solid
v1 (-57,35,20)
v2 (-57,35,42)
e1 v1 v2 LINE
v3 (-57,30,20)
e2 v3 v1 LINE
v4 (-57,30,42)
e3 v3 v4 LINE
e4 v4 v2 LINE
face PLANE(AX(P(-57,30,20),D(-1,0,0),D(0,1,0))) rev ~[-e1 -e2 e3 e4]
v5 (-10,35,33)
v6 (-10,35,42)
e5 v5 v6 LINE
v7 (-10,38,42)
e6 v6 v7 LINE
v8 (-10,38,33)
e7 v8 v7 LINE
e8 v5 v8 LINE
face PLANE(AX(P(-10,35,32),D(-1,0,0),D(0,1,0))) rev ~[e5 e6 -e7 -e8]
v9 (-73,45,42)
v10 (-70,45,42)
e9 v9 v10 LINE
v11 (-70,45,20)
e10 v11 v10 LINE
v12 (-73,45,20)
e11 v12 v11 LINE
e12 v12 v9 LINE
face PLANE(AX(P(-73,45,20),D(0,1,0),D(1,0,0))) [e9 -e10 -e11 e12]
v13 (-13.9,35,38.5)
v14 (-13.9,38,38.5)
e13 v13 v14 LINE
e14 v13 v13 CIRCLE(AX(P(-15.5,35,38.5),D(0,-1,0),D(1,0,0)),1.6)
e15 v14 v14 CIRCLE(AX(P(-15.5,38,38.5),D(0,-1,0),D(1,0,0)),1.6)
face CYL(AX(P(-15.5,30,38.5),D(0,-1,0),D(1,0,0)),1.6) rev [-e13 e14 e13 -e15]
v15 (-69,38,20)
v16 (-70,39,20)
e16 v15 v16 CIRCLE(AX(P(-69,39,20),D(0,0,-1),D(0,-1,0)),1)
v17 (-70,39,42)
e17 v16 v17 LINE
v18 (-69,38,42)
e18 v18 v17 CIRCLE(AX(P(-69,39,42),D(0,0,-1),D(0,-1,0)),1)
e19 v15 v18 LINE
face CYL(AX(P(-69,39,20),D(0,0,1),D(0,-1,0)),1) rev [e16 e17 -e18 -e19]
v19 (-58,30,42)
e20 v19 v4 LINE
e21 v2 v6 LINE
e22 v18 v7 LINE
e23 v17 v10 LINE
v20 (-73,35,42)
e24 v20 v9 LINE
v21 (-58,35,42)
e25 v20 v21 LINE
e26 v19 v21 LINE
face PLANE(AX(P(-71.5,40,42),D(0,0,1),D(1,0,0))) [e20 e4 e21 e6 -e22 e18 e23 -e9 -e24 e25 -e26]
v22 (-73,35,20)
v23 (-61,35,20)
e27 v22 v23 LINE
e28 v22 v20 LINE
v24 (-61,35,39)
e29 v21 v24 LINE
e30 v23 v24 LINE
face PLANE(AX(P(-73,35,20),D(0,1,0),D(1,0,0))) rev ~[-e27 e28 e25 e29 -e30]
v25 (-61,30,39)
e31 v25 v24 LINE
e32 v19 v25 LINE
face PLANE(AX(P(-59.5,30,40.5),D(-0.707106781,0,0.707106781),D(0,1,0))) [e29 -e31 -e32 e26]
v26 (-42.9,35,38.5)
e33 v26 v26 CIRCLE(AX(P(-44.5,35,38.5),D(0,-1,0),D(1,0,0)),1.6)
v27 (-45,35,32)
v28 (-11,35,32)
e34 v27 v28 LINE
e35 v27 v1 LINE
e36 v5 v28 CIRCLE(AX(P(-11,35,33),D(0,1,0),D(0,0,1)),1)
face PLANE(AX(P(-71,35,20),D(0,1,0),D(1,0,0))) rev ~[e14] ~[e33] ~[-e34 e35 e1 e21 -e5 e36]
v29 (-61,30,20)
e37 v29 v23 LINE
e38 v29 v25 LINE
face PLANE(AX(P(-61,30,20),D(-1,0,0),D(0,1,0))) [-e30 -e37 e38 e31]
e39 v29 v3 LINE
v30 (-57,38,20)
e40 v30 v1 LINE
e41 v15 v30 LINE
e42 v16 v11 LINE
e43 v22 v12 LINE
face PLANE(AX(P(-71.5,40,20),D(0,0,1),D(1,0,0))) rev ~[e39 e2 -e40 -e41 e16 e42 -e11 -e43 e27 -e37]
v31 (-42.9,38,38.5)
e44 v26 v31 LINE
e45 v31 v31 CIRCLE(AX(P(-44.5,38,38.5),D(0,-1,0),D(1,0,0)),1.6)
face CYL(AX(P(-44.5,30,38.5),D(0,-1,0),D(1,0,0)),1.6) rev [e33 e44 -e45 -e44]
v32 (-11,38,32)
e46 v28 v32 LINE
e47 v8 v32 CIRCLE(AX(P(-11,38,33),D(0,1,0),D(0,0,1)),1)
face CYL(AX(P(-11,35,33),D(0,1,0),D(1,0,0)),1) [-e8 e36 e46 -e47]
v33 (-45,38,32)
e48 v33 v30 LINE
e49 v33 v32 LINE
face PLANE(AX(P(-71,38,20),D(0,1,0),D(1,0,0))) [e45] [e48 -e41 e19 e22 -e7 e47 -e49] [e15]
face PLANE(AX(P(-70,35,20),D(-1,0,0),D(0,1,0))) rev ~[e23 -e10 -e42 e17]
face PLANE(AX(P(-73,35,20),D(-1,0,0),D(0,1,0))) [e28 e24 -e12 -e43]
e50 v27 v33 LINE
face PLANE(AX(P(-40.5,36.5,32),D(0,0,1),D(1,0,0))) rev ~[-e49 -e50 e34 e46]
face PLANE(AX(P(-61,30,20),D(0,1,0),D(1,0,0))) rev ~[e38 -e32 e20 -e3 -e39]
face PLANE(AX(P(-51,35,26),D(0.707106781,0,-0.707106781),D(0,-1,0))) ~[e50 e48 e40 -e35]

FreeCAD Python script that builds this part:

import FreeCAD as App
import Part
import Sketcher


def edges_at(feature, points):
    """Names of the edges that pass closest to the given points."""
    edges = feature.Shape.Edges
    near = lambda p: min(range(len(edges)), key=lambda i: edges[i].distToShape(Part.Vertex(*p))[0])
    return sorted({f"Edge{near(p) + 1}" for p in points})

doc = App.newDocument("Part")
body = doc.addObject("PartDesign::Body", "Body")

# Sketch on XY plane
sketch1 = body.newObject("Sketcher::SketchObject", "Sketch")
sketch1.AttachmentSupport = (doc.getObject("XY_Plane"), [""])
sketch1.MapMode = "FlatFace"
sketch1.addGeometry(Part.Circle(App.Vector(0, 0, 0), App.Vector(0, 0, 1), 1.6), False)
sketch1.addConstraint([
    Sketcher.Constraint("Coincident", 0, 3, -1, 1),
    Sketcher.Constraint("Diameter", 0, 3.2),
])
pad1 = body.newObject("PartDesign::Pad", "Pad")
pad1.Profile = sketch1
pad1.Length = 10
body2 = doc.addObject("PartDesign::Body", "Body001")
doc.recompute()

body.Placement = App.Placement(App.Vector(0, 0, 0), App.Rotation(App.Vector(1, 0, 0), 270))
boolean = body2.newObject("PartDesign::Boolean", "Boolean")
boolean.Type = "Fuse"
boolean.addObjects([body])
body3 = doc.addObject("PartDesign::Body", "Body002")
doc.recompute()

body2.Placement = App.Placement(App.Vector(-15.5, 30, 38.5), App.Rotation(App.Vector(0, 0, 1), 0))
boolean2 = body3.newObject("PartDesign::Boolean", "Boolean001")
boolean2.Type = "Fuse"
boolean2.addObjects([body2])
body4 = doc.addObject("PartDesign::Body", "Body003")

# Sketch on XY plane
sketch2 = body4.newObject("Sketcher::SketchObject", "Sketch001")
sketch2.AttachmentSupport = (doc.getObject("XY_Plane003"), [""])
sketch2.MapMode = "FlatFace"
sketch2.addGeometry(Part.Circle(App.Vector(0, 0, 0), App.Vector(0, 0, 1), 1.6), False)
sketch2.addConstraint([
    Sketcher.Constraint("Coincident", 0, 3, -1, 1),
    Sketcher.Constraint("Diameter", 0, 3.2),
])
pad2 = body4.newObject("PartDesign::Pad", "Pad001")
pad2.Profile = sketch2
pad2.Length = 10
body5 = doc.addObject("PartDesign::Body", "Body004")
doc.recompute()

body4.Placement = App.Placement(App.Vector(0, 0, 0), App.Rotation(App.Vector(1, 0, 0), 270))
boolean3 = body5.newObject("PartDesign::Boolean", "Boolean002")
boolean3.Type = "Fuse"
boolean3.addObjects([body4])
body6 = doc.addObject("PartDesign::Body", "Body005")
body6.AllowCompound = True
doc.recompute()

body5.Placement = App.Placement(App.Vector(-44.5, 30, 38.5), App.Rotation(App.Vector(0, 0, 1), 0))
boolean4 = body6.newObject("PartDesign::Boolean", "Boolean003")
boolean4.Type = "Fuse"
boolean4.addObjects([body5])
doc.recompute()

boolean5 = body6.newObject("PartDesign::Boolean", "Boolean004")
boolean5.Type = "Fuse"
boolean5.addObjects([body3])
body7 = doc.addObject("PartDesign::Body", "Body006")

# Sketch on XY plane
sketch3 = body7.newObject("Sketcher::SketchObject", "Sketch002")
sketch3.AttachmentSupport = (doc.getObject("XY_Plane006"), [""])
sketch3.MapMode = "FlatFace"
sketch3.AttachmentOffset = App.Placement(App.Vector(0, 0, 20), App.Rotation())
sketch3.addGeometry([
    Part.LineSegment(App.Vector(-73, 45, 0), App.Vector(-73, 35, 0)),
    Part.LineSegment(App.Vector(-73, 35, 0), App.Vector(-70, 35, 0)),
    Part.LineSegment(App.Vector(-70, 35, 0), App.Vector(-70, 45, 0)),
    Part.LineSegment(App.Vector(-70, 45, 0), App.Vector(-73, 45, 0)),
], False)
sketch3.addConstraint([
    Sketcher.Constraint("Coincident", 0, 2, 1, 1),
    Sketcher.Constraint("Coincident", 1, 2, 2, 1),
    Sketcher.Constraint("Coincident", 2, 2, 3, 1),
    Sketcher.Constraint("Coincident", 3, 2, 0, 1),
    Sketcher.Constraint("Vertical", 0),
    Sketcher.Constraint("Horizontal", 1),
    Sketcher.Constraint("Vertical", 2),
    Sketcher.Constraint("Horizontal", 3),
    Sketcher.Constraint("DistanceX", 1, 1, 1, 2, 3.0),
    Sketcher.Constraint("DistanceY", 0, 2, 0, 1, 10.0),
    Sketcher.Constraint("DistanceX", 0, 2, -1, 1, 73.0),
    Sketcher.Constraint("DistanceY", -1, 1, 0, 2, 35.0),
])
pad3 = body7.newObject("PartDesign::Pad", "Pad002")
pad3.Profile = sketch3
pad3.Length = 22
body8 = doc.addObject("PartDesign::Body", "Body007")

# Sketch on XY plane
sketch4 = body8.newObject("Sketcher::SketchObject", "Sketch003")
sketch4.AttachmentSupport = (doc.getObject("XY_Plane007"), [""])
sketch4.MapMode = "FlatFace"
sketch4.AttachmentOffset = App.Placement(App.Vector(0, 0, 20), App.Rotation())
sketch4.addGeometry([
    Part.LineSegment(App.Vector(-61, 37, 0), App.Vector(-61, 30, 0)),
    Part.LineSegment(App.Vector(-61, 30, 0), App.Vector(-57, 30, 0)),
    Part.LineSegment(App.Vector(-57, 30, 0), App.Vector(-57, 37, 0)),
    Part.LineSegment(App.Vector(-57, 37, 0), App.Vector(-61, 37, 0)),
], False)
sketch4.addConstraint([
    Sketcher.Constraint("Coincident", 0, 2, 1, 1),
    Sketcher.Constraint("Coincident", 1, 2, 2, 1),
    Sketcher.Constraint("Coincident", 2, 2, 3, 1),
    Sketcher.Constraint("Coincident", 3, 2, 0, 1),
    Sketcher.Constraint("Vertical", 0),
    Sketcher.Constraint("Horizontal", 1),
    Sketcher.Constraint("Vertical", 2),
    Sketcher.Constraint("Horizontal", 3),
    Sketcher.Constraint("DistanceX", 1, 1, 1, 2, 4.0),
    Sketcher.Constraint("DistanceY", 0, 2, 0, 1, 7.0),
    Sketcher.Constraint("DistanceX", 0, 2, -1, 1, 61.0),
    Sketcher.Constraint("DistanceY", -1, 1, 0, 2, 30.0),
])
pad4 = body8.newObject("PartDesign::Pad", "Pad003")
pad4.Profile = sketch4
pad4.Length = 22
body9 = doc.addObject("PartDesign::Body", "Body008")

# Sketch on XY plane
sketch5 = body9.newObject("Sketcher::SketchObject", "Sketch004")
sketch5.AttachmentSupport = (doc.getObject("XY_Plane008"), [""])
sketch5.MapMode = "FlatFace"
sketch5.AttachmentOffset = App.Placement(App.Vector(0, 0, 20), App.Rotation())
sketch5.addGeometry([
    Part.LineSegment(App.Vector(-71, 38, 0), App.Vector(-71, 35, 0)),
    Part.LineSegment(App.Vector(-71, 35, 0), App.Vector(-45, 35, 0)),
    Part.LineSegment(App.Vector(-45, 35, 0), App.Vector(-45, 38, 0)),
    Part.LineSegment(App.Vector(-45, 38, 0), App.Vector(-71, 38, 0)),
], False)
sketch5.addConstraint([
    Sketcher.Constraint("Coincident", 0, 2, 1, 1),
    Sketcher.Constraint("Coincident", 1, 2, 2, 1),
    Sketcher.Constraint("Coincident", 2, 2, 3, 1),
    Sketcher.Constraint("Coincident", 3, 2, 0, 1),
    Sketcher.Constraint("Vertical", 0),
    Sketcher.Constraint("Horizontal", 1),
    Sketcher.Constraint("Vertical", 2),
    Sketcher.Constraint("Horizontal", 3),
    Sketcher.Constraint("DistanceX", 1, 1, 1, 2, 26.0),
    Sketcher.Constraint("DistanceY", 0, 2, 0, 1, 3.0),
    Sketcher.Constraint("DistanceX", 0, 2, -1, 1, 71.0),
    Sketcher.Constraint("DistanceY", -1, 1, 0, 2, 35.0),
])
pad5 = body9.newObject("PartDesign::Pad", "Pad004")
pad5.Profile = sketch5
pad5.Length = 21
doc.recompute()

chamfer = body9.newObject("PartDesign::Chamfer", "Chamfer")
chamfer.Base = (pad5, edges_at(pad5, [(-45, 36.5, 20)]))
chamfer.Size = 12
body10 = doc.addObject("PartDesign::Body", "Body009")

# Sketch on XY plane
sketch6 = body10.newObject("Sketcher::SketchObject", "Sketch005")
sketch6.AttachmentSupport = (doc.getObject("XY_Plane009"), [""])
sketch6.MapMode = "FlatFace"
sketch6.AttachmentOffset = App.Placement(App.Vector(0, 0, 32), App.Rotation())
sketch6.addGeometry([
    Part.LineSegment(App.Vector(-71, 38, 0), App.Vector(-71, 35, 0)),
    Part.LineSegment(App.Vector(-71, 35, 0), App.Vector(-10, 35, 0)),
    Part.LineSegment(App.Vector(-10, 35, 0), App.Vector(-10, 38, 0)),
    Part.LineSegment(App.Vector(-10, 38, 0), App.Vector(-71, 38, 0)),
], False)
sketch6.addConstraint([
    Sketcher.Constraint("Coincident", 0, 2, 1, 1),
    Sketcher.Constraint("Coincident", 1, 2, 2, 1),
    Sketcher.Constraint("Coincident", 2, 2, 3, 1),
    Sketcher.Constraint("Coincident", 3, 2, 0, 1),
    Sketcher.Constraint("Vertical", 0),
    Sketcher.Constraint("Horizontal", 1),
    Sketcher.Constraint("Vertical", 2),
    Sketcher.Constraint("Horizontal", 3),
    Sketcher.Constraint("DistanceX", 1, 1, 1, 2, 61.0),
    Sketcher.Constraint("DistanceY", 0, 2, 0, 1, 3.0),
    Sketcher.Constraint("DistanceX", 0, 2, -1, 1, 71.0),
    Sketcher.Constraint("DistanceY", -1, 1, 0, 2, 35.0),
])
pad6 = body10.newObject("PartDesign::Pad", "Pad005")
pad6.Profile = sketch6
pad6.Length = 10
doc.recompute()

boolean6 = body10.newObject("PartDesign::Boolean", "Boolean005")
boolean6.Type = "Fuse"
boolean6.addObjects([body9])
doc.recompute()

boolean7 = body10.newObject("PartDesign::Boolean", "Boolean006")
boolean7.Type = "Fuse"
boolean7.addObjects([body8])
doc.recompute()

boolean8 = body10.newObject("PartDesign::Boolean", "Boolean007")
boolean8.Type = "Fuse"
boolean8.addObjects([body7])
doc.recompute()

chamfer2 = body10.newObject("PartDesign::Chamfer", "Chamfer001")
chamfer2.Base = (boolean8, edges_at(boolean8, [(-61, 32.5, 42)]))
chamfer2.Size = 3
doc.recompute()

boolean9 = body10.newObject("PartDesign::Boolean", "Boolean008")
boolean9.Type = "Cut"
boolean9.addObjects([body6])
doc.recompute()

fillet = body10.newObject("PartDesign::Fillet", "Fillet")
fillet.Base = (boolean9, edges_at(boolean9, [(-10, 36.5, 32), (-70, 38, 31)]))
fillet.Radius = 1

doc.recompute()
